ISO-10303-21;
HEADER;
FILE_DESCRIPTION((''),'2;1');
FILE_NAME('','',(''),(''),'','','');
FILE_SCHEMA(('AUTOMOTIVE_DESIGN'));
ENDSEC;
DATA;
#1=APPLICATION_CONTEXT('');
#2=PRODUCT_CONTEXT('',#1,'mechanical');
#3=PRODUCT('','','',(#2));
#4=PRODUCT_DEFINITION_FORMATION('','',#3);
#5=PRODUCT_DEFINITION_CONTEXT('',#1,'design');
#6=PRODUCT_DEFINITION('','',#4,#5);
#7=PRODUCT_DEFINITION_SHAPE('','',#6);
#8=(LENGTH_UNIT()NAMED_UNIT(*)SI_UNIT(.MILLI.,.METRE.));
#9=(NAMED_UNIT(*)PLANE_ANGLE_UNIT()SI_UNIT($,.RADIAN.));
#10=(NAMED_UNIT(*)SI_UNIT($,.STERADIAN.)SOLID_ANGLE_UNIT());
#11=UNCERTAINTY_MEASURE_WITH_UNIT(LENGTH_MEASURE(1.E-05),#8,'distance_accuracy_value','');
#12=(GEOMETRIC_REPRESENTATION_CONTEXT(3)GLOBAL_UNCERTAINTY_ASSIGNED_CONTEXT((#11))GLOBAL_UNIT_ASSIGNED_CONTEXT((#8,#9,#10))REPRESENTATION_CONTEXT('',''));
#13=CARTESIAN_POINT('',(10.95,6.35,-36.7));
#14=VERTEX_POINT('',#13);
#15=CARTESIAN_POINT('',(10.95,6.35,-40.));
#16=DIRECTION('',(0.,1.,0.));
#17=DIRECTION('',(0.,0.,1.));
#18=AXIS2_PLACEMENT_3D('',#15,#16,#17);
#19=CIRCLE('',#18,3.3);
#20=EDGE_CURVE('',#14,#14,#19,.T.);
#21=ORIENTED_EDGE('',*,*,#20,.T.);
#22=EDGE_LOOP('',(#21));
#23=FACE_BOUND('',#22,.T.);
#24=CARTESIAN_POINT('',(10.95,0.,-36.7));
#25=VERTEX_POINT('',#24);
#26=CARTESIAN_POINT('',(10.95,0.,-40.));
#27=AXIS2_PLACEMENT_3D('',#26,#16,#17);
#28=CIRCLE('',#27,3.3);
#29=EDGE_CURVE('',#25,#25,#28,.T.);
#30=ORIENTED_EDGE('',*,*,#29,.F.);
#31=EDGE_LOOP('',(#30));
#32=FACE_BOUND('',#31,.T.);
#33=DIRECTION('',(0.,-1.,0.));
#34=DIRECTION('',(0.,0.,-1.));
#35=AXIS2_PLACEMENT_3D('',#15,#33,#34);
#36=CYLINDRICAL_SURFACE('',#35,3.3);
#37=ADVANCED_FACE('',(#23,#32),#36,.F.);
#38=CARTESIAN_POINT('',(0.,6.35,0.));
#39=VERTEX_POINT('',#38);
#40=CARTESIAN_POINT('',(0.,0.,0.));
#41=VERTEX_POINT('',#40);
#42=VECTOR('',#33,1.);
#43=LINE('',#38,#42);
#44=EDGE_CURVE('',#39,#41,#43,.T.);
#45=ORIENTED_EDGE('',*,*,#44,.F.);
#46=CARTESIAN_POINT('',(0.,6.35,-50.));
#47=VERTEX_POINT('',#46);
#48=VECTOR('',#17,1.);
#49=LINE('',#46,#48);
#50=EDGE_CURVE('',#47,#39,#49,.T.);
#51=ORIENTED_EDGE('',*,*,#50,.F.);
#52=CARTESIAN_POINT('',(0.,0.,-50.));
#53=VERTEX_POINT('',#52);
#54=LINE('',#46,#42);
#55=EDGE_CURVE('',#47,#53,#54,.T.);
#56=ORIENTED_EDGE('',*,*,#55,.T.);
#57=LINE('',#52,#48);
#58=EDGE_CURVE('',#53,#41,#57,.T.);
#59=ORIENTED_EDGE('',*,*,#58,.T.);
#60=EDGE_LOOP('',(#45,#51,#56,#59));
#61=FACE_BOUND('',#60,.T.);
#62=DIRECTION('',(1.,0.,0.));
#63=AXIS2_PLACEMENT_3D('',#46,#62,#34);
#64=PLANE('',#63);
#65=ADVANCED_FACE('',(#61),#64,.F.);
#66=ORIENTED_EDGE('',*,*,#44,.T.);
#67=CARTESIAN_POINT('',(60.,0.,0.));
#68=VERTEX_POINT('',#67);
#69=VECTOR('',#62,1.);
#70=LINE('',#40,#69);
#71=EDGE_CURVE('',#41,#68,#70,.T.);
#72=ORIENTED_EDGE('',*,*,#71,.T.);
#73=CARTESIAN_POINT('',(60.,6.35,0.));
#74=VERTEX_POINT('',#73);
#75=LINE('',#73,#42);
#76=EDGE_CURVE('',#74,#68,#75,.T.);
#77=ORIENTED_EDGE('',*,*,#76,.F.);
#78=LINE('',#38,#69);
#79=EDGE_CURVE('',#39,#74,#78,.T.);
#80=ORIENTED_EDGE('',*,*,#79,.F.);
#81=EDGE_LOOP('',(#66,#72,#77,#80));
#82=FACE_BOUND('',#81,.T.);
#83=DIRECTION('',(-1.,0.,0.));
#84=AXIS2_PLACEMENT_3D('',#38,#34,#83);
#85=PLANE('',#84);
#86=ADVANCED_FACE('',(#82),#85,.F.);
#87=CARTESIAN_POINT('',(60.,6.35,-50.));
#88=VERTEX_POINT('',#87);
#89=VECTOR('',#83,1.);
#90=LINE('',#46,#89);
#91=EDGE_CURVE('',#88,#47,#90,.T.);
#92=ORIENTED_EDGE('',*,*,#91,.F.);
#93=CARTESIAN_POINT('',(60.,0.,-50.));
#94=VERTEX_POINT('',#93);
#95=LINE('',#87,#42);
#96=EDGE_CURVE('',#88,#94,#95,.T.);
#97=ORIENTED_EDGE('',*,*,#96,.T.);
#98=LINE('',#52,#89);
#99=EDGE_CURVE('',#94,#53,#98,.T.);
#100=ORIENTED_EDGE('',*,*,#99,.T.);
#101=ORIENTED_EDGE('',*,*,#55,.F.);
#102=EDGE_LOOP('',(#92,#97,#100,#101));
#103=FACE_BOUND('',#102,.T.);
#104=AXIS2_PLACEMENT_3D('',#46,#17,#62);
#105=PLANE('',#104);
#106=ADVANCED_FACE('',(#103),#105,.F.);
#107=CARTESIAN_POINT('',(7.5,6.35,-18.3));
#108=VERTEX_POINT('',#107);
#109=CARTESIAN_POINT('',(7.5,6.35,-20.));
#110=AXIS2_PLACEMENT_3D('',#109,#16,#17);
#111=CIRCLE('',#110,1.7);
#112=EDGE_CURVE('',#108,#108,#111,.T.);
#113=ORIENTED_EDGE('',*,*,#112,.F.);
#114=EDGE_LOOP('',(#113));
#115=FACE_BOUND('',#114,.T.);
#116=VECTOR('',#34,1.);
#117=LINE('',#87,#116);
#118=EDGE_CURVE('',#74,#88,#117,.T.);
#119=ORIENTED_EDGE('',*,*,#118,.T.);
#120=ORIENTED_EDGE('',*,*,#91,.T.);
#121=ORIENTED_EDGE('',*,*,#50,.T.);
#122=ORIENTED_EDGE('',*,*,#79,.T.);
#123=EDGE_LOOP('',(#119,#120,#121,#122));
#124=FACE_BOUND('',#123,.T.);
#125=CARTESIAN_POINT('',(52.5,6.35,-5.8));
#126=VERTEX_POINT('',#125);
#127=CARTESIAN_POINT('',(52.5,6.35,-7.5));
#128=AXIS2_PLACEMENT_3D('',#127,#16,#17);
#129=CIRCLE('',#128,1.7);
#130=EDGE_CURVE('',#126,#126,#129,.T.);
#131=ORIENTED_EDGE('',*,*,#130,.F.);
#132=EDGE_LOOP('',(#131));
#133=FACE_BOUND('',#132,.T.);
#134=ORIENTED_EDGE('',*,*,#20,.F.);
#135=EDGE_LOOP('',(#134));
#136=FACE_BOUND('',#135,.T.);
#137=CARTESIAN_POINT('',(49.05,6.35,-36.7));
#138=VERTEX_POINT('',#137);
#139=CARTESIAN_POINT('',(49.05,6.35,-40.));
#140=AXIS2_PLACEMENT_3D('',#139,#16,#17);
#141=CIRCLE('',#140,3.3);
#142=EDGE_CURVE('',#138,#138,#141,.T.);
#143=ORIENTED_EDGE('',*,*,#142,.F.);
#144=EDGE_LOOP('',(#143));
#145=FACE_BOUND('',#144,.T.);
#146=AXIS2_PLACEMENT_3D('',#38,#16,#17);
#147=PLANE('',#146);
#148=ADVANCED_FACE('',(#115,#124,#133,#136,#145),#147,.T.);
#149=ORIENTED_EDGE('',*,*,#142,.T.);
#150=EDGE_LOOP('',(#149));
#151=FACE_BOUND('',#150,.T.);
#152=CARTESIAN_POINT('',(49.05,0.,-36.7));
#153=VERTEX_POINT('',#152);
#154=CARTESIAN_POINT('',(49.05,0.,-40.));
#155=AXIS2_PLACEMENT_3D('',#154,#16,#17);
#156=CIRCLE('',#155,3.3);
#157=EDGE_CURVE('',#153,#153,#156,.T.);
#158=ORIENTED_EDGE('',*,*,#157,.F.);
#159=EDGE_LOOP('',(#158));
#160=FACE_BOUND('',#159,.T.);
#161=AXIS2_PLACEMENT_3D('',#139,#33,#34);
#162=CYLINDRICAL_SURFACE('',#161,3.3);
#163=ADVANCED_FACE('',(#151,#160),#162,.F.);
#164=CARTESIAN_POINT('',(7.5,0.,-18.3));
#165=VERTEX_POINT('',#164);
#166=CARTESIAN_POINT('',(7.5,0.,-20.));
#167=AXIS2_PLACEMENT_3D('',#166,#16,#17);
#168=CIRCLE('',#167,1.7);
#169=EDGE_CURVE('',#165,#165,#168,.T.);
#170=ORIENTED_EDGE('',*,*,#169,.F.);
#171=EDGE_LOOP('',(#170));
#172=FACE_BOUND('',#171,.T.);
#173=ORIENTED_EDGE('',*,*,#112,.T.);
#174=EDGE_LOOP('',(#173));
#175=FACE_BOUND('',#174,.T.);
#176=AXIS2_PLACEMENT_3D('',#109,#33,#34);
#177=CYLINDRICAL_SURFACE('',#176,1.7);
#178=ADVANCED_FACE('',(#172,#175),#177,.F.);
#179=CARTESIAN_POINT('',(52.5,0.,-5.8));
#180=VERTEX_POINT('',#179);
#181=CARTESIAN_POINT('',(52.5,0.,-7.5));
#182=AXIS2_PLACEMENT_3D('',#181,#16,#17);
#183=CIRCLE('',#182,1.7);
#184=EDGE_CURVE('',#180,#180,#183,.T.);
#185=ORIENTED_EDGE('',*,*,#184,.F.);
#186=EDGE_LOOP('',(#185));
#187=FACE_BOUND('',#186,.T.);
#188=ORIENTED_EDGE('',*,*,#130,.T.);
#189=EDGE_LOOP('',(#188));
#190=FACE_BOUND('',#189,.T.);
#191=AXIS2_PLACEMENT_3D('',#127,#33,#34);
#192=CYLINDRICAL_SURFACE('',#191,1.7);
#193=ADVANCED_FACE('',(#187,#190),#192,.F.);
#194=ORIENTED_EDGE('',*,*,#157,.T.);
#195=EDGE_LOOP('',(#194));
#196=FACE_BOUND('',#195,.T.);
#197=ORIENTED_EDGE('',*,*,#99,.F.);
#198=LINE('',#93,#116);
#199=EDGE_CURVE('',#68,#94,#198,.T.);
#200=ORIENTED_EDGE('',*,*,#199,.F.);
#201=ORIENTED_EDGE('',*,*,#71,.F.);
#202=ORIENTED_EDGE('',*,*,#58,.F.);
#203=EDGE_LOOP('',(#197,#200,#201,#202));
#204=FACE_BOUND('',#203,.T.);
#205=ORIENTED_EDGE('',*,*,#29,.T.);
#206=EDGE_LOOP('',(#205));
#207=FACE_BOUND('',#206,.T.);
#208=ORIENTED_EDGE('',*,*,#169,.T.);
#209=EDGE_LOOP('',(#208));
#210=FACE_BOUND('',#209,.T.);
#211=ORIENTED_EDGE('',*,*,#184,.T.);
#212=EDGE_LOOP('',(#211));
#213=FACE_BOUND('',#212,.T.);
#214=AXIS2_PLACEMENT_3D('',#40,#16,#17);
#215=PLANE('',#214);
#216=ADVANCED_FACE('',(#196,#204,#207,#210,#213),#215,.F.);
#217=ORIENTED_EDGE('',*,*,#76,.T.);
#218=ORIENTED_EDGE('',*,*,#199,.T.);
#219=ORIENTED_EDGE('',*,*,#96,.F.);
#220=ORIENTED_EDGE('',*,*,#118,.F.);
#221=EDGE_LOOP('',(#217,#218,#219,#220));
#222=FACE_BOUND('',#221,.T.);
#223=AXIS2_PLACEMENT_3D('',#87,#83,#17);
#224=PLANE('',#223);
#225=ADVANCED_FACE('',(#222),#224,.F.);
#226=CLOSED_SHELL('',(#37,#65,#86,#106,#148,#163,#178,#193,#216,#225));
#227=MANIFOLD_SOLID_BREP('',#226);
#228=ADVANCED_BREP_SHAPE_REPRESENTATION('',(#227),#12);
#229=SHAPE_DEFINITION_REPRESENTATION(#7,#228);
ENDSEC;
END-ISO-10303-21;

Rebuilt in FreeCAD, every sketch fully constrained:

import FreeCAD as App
import Part
import Sketcher
from FreeCAD import Vector
Q = App.Units.Quantity

doc = App.newDocument("Part")
params = doc.addObject("Spreadsheet::Sheet", "Params")
for row, (alias, value) in enumerate([
    ("sketch1_diameter", "3.4 mm"),
    ("sketch1_diameter2", "6.6 mm"),
    ("sketch1_width", "60 mm"),
    ("sketch1_height", "50 mm"),
    ("pad1_length", "6.35 mm"),
], start=1):
    params.set(f"A{row}", alias)
    params.set(f"B{row}", "=" + value)
    params.setAlias(f"B{row}", alias)

body = doc.addObject("PartDesign::Body", "Body")

# Sketch on XZ plane
sketch1 = body.newObject("Sketcher::SketchObject", "Sketch")
sketch1.AttachmentSupport = (doc.getObject("XZ_Plane"), [""])
sketch1.MapMode = "FlatFace"
sketch1.addGeometry([
    Part.LineSegment(Vector(0, -50, 0), Vector(0, 0, 0)),  # 0
    Part.LineSegment(Vector(0, 0, 0), Vector(60, 0, 0)),  # 1
    Part.LineSegment(Vector(60, 0, 0), Vector(60, -50, 0)),  # 2
    Part.LineSegment(Vector(60, -50, 0), Vector(0, -50, 0)),  # 3
    Part.Circle(Vector(7.5, -20, 0), Vector(0, 0, 1), 1.7),  # 4
    Part.Circle(Vector(52.5, -7.5, 0), Vector(0, 0, 1), 1.7),  # 5
    Part.Circle(Vector(10.9, -40, 0), Vector(0, 0, 1), 3.3),  # 6
    Part.Circle(Vector(49, -40, 0), Vector(0, 0, 1), 3.3),  # 7
], False)
sketch1.addConstraint([
    Sketcher.Constraint("Coincident", 0, 2, 1, 1),
    Sketcher.Constraint("Coincident", 1, 2, 2, 1),
    Sketcher.Constraint("Coincident", 2, 2, 3, 1),
    Sketcher.Constraint("Coincident", 3, 2, 0, 1),
    Sketcher.Constraint("Vertical", 0),
    Sketcher.Constraint("Horizontal", 1),
    Sketcher.Constraint("Vertical", 2),
    Sketcher.Constraint("Horizontal", 3),
    Sketcher.Constraint("Coincident", 0, 2, -1, 1),
    Sketcher.Constraint("Equal", 4, 5),
    Sketcher.Constraint("Equal", 6, 7),
    Sketcher.Constraint("Horizontal", 6, 3, 7, 3),
    Sketcher.Constraint("Diameter", 4, Q("3.4 mm")),
    Sketcher.Constraint("Diameter", 6, Q("6.6 mm")),
    Sketcher.Constraint("DistanceX", 1, 1, 1, 2, Q("60 mm")),
    Sketcher.Constraint("DistanceY", 0, 1, 0, 2, Q("50 mm")),
    Sketcher.Constraint("DistanceY", 4, 3, -1, 1, Q("20 mm")),
    Sketcher.Constraint("DistanceY", 6, 3, -1, 1, Q("40 mm")),
    Sketcher.Constraint("DistanceX", 4, 3, 5, 3, Q("45 mm")),
    Sketcher.Constraint("DistanceX", -1, 1, 4, 3, Q("7.5 mm")),
    Sketcher.Constraint("DistanceY", 5, 3, -1, 1, Q("7.5 mm")),
    Sketcher.Constraint("DistanceX", 6, 3, 7, 3, Q("38.1 mm")),
    Sketcher.Constraint("DistanceX", -1, 1, 6, 3, Q("10.95 mm")),
])
sketch1.setExpression("Constraints[12]", "Params.sketch1_diameter")
sketch1.setExpression("Constraints[13]", "Params.sketch1_diameter2")
sketch1.setExpression("Constraints[14]", "Params.sketch1_width")
sketch1.setExpression("Constraints[15]", "Params.sketch1_height")
pad1 = body.newObject("PartDesign::Pad", "Pad")
pad1.Profile = sketch1
pad1.setExpression("Length", "Params.pad1_length")
pad1.Reversed = True

doc.recompute()
